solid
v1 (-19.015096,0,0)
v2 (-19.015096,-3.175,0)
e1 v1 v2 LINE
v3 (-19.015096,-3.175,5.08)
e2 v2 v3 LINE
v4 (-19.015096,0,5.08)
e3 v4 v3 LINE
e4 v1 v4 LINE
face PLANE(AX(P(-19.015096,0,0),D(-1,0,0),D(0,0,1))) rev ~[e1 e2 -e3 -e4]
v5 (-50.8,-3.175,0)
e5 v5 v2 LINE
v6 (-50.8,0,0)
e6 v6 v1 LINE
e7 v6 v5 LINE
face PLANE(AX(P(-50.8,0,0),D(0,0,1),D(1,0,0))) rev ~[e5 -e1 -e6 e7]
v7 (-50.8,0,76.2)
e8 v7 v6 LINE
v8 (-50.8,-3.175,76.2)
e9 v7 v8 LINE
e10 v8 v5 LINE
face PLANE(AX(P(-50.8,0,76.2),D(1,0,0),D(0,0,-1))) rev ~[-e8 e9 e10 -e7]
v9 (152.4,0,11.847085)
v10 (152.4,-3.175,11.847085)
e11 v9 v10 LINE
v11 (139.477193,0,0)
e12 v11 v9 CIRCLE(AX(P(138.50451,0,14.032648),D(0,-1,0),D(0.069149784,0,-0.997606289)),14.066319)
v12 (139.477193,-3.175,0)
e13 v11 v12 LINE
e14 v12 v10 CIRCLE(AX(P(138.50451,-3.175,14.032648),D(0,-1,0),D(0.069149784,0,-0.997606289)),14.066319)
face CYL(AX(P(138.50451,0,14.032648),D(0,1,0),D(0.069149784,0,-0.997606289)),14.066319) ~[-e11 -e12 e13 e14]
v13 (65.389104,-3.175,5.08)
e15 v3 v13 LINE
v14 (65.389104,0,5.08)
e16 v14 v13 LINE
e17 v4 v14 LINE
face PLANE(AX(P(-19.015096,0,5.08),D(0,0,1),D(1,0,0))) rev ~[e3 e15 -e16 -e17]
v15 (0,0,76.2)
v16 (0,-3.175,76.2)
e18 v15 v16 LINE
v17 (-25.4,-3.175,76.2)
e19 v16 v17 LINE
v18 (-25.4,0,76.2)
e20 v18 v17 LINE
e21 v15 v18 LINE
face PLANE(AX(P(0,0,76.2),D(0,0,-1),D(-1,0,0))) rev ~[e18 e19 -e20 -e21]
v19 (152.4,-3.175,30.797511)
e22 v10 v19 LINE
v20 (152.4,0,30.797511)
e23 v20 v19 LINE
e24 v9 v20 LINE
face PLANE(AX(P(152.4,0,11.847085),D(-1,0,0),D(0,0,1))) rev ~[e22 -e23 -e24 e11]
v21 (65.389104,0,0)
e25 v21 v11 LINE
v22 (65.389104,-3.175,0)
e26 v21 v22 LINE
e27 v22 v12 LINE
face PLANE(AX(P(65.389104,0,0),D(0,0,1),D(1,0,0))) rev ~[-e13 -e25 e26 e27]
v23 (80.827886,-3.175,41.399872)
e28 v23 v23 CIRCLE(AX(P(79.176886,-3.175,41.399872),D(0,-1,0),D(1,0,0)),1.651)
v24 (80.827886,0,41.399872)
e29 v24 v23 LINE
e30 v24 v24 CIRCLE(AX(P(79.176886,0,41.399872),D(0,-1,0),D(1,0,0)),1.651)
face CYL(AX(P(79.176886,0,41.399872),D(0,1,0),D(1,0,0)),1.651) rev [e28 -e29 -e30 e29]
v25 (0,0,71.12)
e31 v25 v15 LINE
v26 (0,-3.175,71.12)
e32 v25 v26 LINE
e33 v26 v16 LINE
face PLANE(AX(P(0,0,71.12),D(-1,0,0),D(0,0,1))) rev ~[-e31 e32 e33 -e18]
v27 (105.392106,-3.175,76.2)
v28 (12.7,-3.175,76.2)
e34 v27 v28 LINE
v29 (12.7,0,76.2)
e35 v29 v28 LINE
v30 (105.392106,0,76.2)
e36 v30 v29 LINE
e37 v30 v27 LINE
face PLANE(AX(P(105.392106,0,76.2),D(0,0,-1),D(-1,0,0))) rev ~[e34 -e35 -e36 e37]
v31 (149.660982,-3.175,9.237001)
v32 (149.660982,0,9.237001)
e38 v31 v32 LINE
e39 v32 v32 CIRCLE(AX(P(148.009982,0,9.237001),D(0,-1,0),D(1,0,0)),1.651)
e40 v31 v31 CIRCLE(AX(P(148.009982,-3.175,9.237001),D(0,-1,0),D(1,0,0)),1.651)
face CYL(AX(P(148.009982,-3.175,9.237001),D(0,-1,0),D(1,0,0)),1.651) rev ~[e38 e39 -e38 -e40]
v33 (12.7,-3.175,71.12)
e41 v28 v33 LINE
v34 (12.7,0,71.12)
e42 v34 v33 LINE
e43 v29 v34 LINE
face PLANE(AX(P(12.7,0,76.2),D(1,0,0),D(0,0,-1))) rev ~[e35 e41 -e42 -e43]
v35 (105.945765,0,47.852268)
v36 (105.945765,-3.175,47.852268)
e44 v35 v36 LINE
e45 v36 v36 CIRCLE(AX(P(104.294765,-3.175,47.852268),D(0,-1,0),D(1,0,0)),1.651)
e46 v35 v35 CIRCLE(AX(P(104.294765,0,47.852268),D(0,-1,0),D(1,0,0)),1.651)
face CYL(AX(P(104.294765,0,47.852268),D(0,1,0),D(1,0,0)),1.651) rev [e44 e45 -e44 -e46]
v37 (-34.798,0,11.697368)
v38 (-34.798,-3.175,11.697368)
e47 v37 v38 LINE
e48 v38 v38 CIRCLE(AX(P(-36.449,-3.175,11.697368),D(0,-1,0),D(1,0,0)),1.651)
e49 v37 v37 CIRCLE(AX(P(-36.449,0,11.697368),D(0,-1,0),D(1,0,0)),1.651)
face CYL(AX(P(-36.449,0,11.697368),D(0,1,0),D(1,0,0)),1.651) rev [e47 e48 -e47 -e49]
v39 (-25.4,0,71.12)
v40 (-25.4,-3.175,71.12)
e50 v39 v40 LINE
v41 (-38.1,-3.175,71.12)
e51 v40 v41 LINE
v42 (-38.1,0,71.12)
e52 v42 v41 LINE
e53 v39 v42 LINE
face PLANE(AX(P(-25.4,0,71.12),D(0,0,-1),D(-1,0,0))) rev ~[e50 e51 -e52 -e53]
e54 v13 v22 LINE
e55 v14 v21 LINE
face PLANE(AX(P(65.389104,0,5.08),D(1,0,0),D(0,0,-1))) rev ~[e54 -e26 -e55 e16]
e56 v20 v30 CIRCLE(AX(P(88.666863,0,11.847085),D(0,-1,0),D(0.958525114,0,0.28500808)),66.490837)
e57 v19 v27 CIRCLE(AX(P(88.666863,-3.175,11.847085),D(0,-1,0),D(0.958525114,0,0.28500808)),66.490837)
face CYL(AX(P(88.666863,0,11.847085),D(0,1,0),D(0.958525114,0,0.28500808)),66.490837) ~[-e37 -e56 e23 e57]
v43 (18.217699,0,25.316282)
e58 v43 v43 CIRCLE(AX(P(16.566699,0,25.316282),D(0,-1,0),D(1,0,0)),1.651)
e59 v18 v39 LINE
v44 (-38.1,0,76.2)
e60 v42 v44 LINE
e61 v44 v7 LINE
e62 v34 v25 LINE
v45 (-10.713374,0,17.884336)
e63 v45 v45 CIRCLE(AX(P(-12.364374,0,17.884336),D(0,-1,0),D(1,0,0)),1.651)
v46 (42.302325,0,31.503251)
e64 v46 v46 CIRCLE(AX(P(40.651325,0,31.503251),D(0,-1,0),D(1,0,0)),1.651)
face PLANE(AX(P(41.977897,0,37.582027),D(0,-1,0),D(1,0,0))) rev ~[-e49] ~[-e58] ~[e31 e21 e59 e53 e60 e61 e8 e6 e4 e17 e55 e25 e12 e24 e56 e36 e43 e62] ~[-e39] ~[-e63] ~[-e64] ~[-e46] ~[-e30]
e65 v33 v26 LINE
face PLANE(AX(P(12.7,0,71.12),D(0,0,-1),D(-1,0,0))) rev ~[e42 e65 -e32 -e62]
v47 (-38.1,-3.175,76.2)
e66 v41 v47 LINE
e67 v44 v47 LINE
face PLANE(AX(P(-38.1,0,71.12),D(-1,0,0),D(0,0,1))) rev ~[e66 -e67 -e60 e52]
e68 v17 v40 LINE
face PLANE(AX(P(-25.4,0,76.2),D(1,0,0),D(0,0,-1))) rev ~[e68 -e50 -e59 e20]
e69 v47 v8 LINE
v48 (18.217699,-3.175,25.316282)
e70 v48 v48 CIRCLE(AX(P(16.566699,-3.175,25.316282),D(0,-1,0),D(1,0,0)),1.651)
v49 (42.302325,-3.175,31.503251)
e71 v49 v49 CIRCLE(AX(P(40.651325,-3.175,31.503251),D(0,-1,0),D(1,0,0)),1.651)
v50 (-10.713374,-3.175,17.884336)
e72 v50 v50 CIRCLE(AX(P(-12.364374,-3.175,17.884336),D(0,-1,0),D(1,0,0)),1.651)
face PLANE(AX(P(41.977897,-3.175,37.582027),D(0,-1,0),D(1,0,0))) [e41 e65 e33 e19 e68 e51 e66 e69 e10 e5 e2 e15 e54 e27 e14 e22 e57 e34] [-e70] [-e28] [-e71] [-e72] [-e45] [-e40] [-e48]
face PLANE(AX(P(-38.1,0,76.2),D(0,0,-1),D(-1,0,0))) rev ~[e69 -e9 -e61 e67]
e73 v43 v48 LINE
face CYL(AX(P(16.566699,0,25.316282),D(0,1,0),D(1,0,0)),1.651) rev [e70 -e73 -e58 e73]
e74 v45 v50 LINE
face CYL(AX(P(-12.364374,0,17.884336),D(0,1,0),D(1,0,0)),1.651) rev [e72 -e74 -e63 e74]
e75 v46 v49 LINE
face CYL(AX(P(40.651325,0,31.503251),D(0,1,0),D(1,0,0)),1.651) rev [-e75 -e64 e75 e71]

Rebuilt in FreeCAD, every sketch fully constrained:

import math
import FreeCAD as App
import Part
import Sketcher
Q = App.Units.Quantity

doc = App.newDocument("Part")
body = doc.addObject("PartDesign::Body", "Body")

# Sketch on XZ plane
sketch1 = body.newObject("Sketcher::SketchObject", "Sketch")
sketch1.AttachmentSupport = (doc.getObject("XZ_Plane"), [""])
sketch1.MapMode = "FlatFace"
sketch1.addGeometry(Part.LineSegment(App.Vector(65.4, 5.1, 0), App.Vector(65.4, 0, 0)), False)
sketch1.addGeometry(Part.LineSegment(App.Vector(65.4, 0, 0), App.Vector(139.5, 0, 0)), False)
sketch1.addGeometry(Part.ArcOfCircle(Part.Circle(App.Vector(138.5, 14, 0), App.Vector(0, 0, 1), 14.1), math.radians(-86), math.radians(-9)), False)
sketch1.addGeometry(Part.LineSegment(App.Vector(152.4, 11.8, 0), App.Vector(152.4, 30.8, 0)), False)
sketch1.addGeometry(Part.ArcOfCircle(Part.Circle(App.Vector(88.7, 11.8, 0), App.Vector(0, 0, 1), 66.5), math.radians(17), math.radians(75)), False)
sketch1.addGeometry(Part.LineSegment(App.Vector(105.4, 76.2, 0), App.Vector(12.7, 76.2, 0)), False)
sketch1.addGeometry(Part.LineSegment(App.Vector(12.7, 76.2, 0), App.Vector(12.7, 71.1, 0)), False)
sketch1.addGeometry(Part.LineSegment(App.Vector(12.7, 71.1, 0), App.Vector(0, 71.1, 0)), False)
sketch1.addGeometry(Part.LineSegment(App.Vector(0, 71.1, 0), App.Vector(0, 76.2, 0)), False)
sketch1.addGeometry(Part.LineSegment(App.Vector(0, 76.2, 0), App.Vector(-25.4, 76.2, 0)), False)
sketch1.addGeometry(Part.LineSegment(App.Vector(-25.4, 76.2, 0), App.Vector(-25.4, 71.1, 0)), False)
sketch1.addGeometry(Part.LineSegment(App.Vector(-25.4, 71.1, 0), App.Vector(-38.1, 71.1, 0)), False)
sketch1.addGeometry(Part.LineSegment(App.Vector(-38.1, 71.1, 0), App.Vector(-38.1, 76.2, 0)), False)
sketch1.addGeometry(Part.LineSegment(App.Vector(-38.1, 76.2, 0), App.Vector(-50.8, 76.2, 0)), False)
sketch1.addGeometry(Part.LineSegment(App.Vector(-50.8, 76.2, 0), App.Vector(-50.8, 0, 0)), False)
sketch1.addGeometry(Part.LineSegment(App.Vector(-50.8, 0, 0), App.Vector(-19, 0, 0)), False)
sketch1.addGeometry(Part.LineSegment(App.Vector(-19, 0, 0), App.Vector(-19, 5.1, 0)), False)
sketch1.addGeometry(Part.LineSegment(App.Vector(-19, 5.1, 0), App.Vector(65.4, 5.1, 0)), False)
sketch1.addGeometry(Part.Circle(App.Vector(-36.4, 11.7, 0), App.Vector(0, 0, 1), 1.7), False)
sketch1.addGeometry(Part.Circle(App.Vector(-12.4, 17.9, 0), App.Vector(0, 0, 1), 1.7), False)
sketch1.addGeometry(Part.Circle(App.Vector(16.6, 25.3, 0), App.Vector(0, 0, 1), 1.7), False)
sketch1.addGeometry(Part.Circle(App.Vector(40.7, 31.5, 0), App.Vector(0, 0, 1), 1.7), False)
sketch1.addGeometry(Part.Circle(App.Vector(79.2, 41.4, 0), App.Vector(0, 0, 1), 1.7), False)
sketch1.addGeometry(Part.Circle(App.Vector(104.3, 47.9, 0), App.Vector(0, 0, 1), 1.7), False)
sketch1.addConstraint(Sketcher.Constraint("Coincident", 0, 2, 1, 1))
sketch1.addConstraint(Sketcher.Constraint("Coincident", 1, 2, 2, 1))
sketch1.addConstraint(Sketcher.Constraint("Coincident", 2, 2, 3, 1))
sketch1.addConstraint(Sketcher.Constraint("Coincident", 3, 2, 4, 1))
sketch1.addConstraint(Sketcher.Constraint("Coincident", 4, 2, 5, 1))
sketch1.addConstraint(Sketcher.Constraint("Coincident", 5, 2, 6, 1))
sketch1.addConstraint(Sketcher.Constraint("Coincident", 6, 2, 7, 1))
sketch1.addConstraint(Sketcher.Constraint("Coincident", 7, 2, 8, 1))
sketch1.addConstraint(Sketcher.Constraint("Coincident", 8, 2, 9, 1))
sketch1.addConstraint(Sketcher.Constraint("Coincident", 9, 2, 10, 1))
sketch1.addConstraint(Sketcher.Constraint("Coincident", 10, 2, 11, 1))
sketch1.addConstraint(Sketcher.Constraint("Coincident", 11, 2, 12, 1))
sketch1.addConstraint(Sketcher.Constraint("Coincident", 12, 2, 13, 1))
sketch1.addConstraint(Sketcher.Constraint("Coincident", 13, 2, 14, 1))
sketch1.addConstraint(Sketcher.Constraint("Coincident", 14, 2, 15, 1))
sketch1.addConstraint(Sketcher.Constraint("Coincident", 15, 2, 16, 1))
sketch1.addConstraint(Sketcher.Constraint("Coincident", 16, 2, 17, 1))
sketch1.addConstraint(Sketcher.Constraint("Coincident", 17, 2, 0, 1))
sketch1.addConstraint(Sketcher.Constraint("Vertical", 0))
sketch1.addConstraint(Sketcher.Constraint("Horizontal", 1))
sketch1.addConstraint(Sketcher.Constraint("Vertical", 3))
sketch1.addConstraint(Sketcher.Constraint("Horizontal", 5))
sketch1.addConstraint(Sketcher.Constraint("Vertical", 6))
sketch1.addConstraint(Sketcher.Constraint("Horizontal", 7))
sketch1.addConstraint(Sketcher.Constraint("Vertical", 8))
sketch1.addConstraint(Sketcher.Constraint("Horizontal", 9))
sketch1.addConstraint(Sketcher.Constraint("Vertical", 10))
sketch1.addConstraint(Sketcher.Constraint("Horizontal", 11))
sketch1.addConstraint(Sketcher.Constraint("Vertical", 12))
sketch1.addConstraint(Sketcher.Constraint("Horizontal", 13))
sketch1.addConstraint(Sketcher.Constraint("Vertical", 14))
sketch1.addConstraint(Sketcher.Constraint("Horizontal", 15))
sketch1.addConstraint(Sketcher.Constraint("Vertical", 16))
sketch1.addConstraint(Sketcher.Constraint("Horizontal", 17))
sketch1.addConstraint(Sketcher.Constraint("Equal", 18, 19))
sketch1.addConstraint(Sketcher.Constraint("Equal", 19, 20))
sketch1.addConstraint(Sketcher.Constraint("Equal", 20, 21))
sketch1.addConstraint(Sketcher.Constraint("Equal", 21, 22))
sketch1.addConstraint(Sketcher.Constraint("Equal", 22, 23))
sketch1.addConstraint(Sketcher.Constraint("PointOnObject", 0, 2, -1))
sketch1.addConstraint(Sketcher.Constraint("PointOnObject", 7, 2, -2))
sketch1.addConstraint(Sketcher.Constraint("PointOnObject", 14, 2, -1))
sketch1.addConstraint(Sketcher.Constraint("Horizontal", 4, 3, 2, 2))
sketch1.addConstraint(Sketcher.Constraint("Horizontal", 5, 2, 8, 2))
sketch1.addConstraint(Sketcher.Constraint("Horizontal", 7, 2, 10, 2))
sketch1.addConstraint(Sketcher.Constraint("Horizontal", 9, 2, 12, 2))
sketch1.addConstraint(Sketcher.Constraint("Equal", 7, 11))
sketch1.addConstraint(Sketcher.Constraint("Equal", 11, 13))
sketch1.addConstraint(Sketcher.Constraint("Equal", 0, 6))
sketch1.addConstraint(Sketcher.Constraint("Diameter", 18, Q("0.13 in")))
sketch1.addConstraint(Sketcher.Constraint("DistanceX", 9, 2, 9, 1, Q("1 in")))
sketch1.addConstraint(Sketcher.Constraint("DistanceY", 14, 2, 14, 1, Q("3 in")))
sketch1.addConstraint(Sketcher.Constraint("DistanceX", 7, 2, 7, 1, Q("0.5 in")))
sketch1.addConstraint(Sketcher.Constraint("DistanceY", 0, 2, 0, 1, Q("0.2 in")))
sketch1.addConstraint(Sketcher.Constraint("DistanceX", -1, 1, 2, 2, Q("6 in")))
sketch1.addConstraint(Sketcher.Constraint("DistanceX", 17, 1, 17, 2, Q("3.323 in")))
sketch1.addConstraint(Sketcher.Constraint("DistanceX", 18, 3, -1, 1, Q("1.435 in")))
sketch1.addConstraint(Sketcher.Constraint("Radius", 2, Q("14.066319 mm")))
sketch1.addConstraint(Sketcher.Constraint("Radius", 4, Q("66.490837 mm")))
sketch1.addConstraint(Sketcher.Constraint("DistanceX", 1, 1, 1, 2, Q("74.088089 mm")))
sketch1.addConstraint(Sketcher.Constraint("DistanceX", -1, 1, 20, 3, Q("16.566699 mm")))
sketch1.addConstraint(Sketcher.Constraint("DistanceX", 19, 3, 21, 3, Q("53.015699 mm")))
sketch1.addConstraint(Sketcher.Constraint("DistanceX", 5, 2, 5, 1, Q("92.692106 mm")))
sketch1.addConstraint(Sketcher.Constraint("DistanceX", 15, 1, 15, 2, Q("31.784904 mm")))
sketch1.addConstraint(Sketcher.Constraint("DistanceY", 3, 1, 3, 2, Q("18.950426 mm")))
sketch1.addConstraint(Sketcher.Constraint("DistanceY", -1, 1, 18, 3, Q("11.697368 mm")))
sketch1.addConstraint(Sketcher.Constraint("DistanceY", -1, 1, 21, 3, Q("31.503251 mm")))
sketch1.addConstraint(Sketcher.Constraint("DistanceY", -1, 1, 23, 3, Q("47.852268 mm")))
sketch1.addConstraint(Sketcher.Constraint("DistanceY", 18, 3, 19, 3, Q("6.186968 mm")))
sketch1.addConstraint(Sketcher.Constraint("DistanceY", 20, 3, 21, 3, Q("6.186969 mm")))
sketch1.addConstraint(Sketcher.Constraint("DistanceX", 21, 3, 22, 3, Q("38.525561 mm")))
sketch1.addConstraint(Sketcher.Constraint("DistanceY", 21, 3, 22, 3, Q("9.896621 mm")))
sketch1.addConstraint(Sketcher.Constraint("DistanceX", 22, 3, 23, 3, Q("25.117879 mm")))
sketch1.addConstraint(Sketcher.Constraint("DistanceX", 21, 3, 0, 2, Q("24.737779 mm")))
pad1 = body.newObject("PartDesign::Pad", "Pad")
pad1.Profile = sketch1
pad1.Length = Q("0.125 in")

# Sketch on XZ plane
sketch2 = body.newObject("Sketcher::SketchObject", "Sketch001")
sketch2.AttachmentSupport = (doc.getObject("XZ_Plane"), [""])
sketch2.MapMode = "FlatFace"
sketch2.AttachmentOffset = App.Placement(App.Vector(0, 0, 0.125 * 25.4), App.Rotation())
sketch2.addGeometry(Part.Circle(App.Vector(148, 9.2, 0), App.Vector(0, 0, 1), 1.7), False)
sketch2.addConstraint(Sketcher.Constraint("Diameter", 0, Q("0.13 in")))
sketch2.addConstraint(Sketcher.Constraint("DistanceY", -1, 1, 0, 3, Q("9.237001 mm")))
sketch2.addConstraint(Sketcher.Constraint("DistanceX", -1, 1, 0, 3, Q("148.009982 mm")))
pocket1 = body.newObject("PartDesign::Pocket", "Pocket")
pocket1.Profile = sketch2
pocket1.Length = Q("1 in")

doc.recompute()
